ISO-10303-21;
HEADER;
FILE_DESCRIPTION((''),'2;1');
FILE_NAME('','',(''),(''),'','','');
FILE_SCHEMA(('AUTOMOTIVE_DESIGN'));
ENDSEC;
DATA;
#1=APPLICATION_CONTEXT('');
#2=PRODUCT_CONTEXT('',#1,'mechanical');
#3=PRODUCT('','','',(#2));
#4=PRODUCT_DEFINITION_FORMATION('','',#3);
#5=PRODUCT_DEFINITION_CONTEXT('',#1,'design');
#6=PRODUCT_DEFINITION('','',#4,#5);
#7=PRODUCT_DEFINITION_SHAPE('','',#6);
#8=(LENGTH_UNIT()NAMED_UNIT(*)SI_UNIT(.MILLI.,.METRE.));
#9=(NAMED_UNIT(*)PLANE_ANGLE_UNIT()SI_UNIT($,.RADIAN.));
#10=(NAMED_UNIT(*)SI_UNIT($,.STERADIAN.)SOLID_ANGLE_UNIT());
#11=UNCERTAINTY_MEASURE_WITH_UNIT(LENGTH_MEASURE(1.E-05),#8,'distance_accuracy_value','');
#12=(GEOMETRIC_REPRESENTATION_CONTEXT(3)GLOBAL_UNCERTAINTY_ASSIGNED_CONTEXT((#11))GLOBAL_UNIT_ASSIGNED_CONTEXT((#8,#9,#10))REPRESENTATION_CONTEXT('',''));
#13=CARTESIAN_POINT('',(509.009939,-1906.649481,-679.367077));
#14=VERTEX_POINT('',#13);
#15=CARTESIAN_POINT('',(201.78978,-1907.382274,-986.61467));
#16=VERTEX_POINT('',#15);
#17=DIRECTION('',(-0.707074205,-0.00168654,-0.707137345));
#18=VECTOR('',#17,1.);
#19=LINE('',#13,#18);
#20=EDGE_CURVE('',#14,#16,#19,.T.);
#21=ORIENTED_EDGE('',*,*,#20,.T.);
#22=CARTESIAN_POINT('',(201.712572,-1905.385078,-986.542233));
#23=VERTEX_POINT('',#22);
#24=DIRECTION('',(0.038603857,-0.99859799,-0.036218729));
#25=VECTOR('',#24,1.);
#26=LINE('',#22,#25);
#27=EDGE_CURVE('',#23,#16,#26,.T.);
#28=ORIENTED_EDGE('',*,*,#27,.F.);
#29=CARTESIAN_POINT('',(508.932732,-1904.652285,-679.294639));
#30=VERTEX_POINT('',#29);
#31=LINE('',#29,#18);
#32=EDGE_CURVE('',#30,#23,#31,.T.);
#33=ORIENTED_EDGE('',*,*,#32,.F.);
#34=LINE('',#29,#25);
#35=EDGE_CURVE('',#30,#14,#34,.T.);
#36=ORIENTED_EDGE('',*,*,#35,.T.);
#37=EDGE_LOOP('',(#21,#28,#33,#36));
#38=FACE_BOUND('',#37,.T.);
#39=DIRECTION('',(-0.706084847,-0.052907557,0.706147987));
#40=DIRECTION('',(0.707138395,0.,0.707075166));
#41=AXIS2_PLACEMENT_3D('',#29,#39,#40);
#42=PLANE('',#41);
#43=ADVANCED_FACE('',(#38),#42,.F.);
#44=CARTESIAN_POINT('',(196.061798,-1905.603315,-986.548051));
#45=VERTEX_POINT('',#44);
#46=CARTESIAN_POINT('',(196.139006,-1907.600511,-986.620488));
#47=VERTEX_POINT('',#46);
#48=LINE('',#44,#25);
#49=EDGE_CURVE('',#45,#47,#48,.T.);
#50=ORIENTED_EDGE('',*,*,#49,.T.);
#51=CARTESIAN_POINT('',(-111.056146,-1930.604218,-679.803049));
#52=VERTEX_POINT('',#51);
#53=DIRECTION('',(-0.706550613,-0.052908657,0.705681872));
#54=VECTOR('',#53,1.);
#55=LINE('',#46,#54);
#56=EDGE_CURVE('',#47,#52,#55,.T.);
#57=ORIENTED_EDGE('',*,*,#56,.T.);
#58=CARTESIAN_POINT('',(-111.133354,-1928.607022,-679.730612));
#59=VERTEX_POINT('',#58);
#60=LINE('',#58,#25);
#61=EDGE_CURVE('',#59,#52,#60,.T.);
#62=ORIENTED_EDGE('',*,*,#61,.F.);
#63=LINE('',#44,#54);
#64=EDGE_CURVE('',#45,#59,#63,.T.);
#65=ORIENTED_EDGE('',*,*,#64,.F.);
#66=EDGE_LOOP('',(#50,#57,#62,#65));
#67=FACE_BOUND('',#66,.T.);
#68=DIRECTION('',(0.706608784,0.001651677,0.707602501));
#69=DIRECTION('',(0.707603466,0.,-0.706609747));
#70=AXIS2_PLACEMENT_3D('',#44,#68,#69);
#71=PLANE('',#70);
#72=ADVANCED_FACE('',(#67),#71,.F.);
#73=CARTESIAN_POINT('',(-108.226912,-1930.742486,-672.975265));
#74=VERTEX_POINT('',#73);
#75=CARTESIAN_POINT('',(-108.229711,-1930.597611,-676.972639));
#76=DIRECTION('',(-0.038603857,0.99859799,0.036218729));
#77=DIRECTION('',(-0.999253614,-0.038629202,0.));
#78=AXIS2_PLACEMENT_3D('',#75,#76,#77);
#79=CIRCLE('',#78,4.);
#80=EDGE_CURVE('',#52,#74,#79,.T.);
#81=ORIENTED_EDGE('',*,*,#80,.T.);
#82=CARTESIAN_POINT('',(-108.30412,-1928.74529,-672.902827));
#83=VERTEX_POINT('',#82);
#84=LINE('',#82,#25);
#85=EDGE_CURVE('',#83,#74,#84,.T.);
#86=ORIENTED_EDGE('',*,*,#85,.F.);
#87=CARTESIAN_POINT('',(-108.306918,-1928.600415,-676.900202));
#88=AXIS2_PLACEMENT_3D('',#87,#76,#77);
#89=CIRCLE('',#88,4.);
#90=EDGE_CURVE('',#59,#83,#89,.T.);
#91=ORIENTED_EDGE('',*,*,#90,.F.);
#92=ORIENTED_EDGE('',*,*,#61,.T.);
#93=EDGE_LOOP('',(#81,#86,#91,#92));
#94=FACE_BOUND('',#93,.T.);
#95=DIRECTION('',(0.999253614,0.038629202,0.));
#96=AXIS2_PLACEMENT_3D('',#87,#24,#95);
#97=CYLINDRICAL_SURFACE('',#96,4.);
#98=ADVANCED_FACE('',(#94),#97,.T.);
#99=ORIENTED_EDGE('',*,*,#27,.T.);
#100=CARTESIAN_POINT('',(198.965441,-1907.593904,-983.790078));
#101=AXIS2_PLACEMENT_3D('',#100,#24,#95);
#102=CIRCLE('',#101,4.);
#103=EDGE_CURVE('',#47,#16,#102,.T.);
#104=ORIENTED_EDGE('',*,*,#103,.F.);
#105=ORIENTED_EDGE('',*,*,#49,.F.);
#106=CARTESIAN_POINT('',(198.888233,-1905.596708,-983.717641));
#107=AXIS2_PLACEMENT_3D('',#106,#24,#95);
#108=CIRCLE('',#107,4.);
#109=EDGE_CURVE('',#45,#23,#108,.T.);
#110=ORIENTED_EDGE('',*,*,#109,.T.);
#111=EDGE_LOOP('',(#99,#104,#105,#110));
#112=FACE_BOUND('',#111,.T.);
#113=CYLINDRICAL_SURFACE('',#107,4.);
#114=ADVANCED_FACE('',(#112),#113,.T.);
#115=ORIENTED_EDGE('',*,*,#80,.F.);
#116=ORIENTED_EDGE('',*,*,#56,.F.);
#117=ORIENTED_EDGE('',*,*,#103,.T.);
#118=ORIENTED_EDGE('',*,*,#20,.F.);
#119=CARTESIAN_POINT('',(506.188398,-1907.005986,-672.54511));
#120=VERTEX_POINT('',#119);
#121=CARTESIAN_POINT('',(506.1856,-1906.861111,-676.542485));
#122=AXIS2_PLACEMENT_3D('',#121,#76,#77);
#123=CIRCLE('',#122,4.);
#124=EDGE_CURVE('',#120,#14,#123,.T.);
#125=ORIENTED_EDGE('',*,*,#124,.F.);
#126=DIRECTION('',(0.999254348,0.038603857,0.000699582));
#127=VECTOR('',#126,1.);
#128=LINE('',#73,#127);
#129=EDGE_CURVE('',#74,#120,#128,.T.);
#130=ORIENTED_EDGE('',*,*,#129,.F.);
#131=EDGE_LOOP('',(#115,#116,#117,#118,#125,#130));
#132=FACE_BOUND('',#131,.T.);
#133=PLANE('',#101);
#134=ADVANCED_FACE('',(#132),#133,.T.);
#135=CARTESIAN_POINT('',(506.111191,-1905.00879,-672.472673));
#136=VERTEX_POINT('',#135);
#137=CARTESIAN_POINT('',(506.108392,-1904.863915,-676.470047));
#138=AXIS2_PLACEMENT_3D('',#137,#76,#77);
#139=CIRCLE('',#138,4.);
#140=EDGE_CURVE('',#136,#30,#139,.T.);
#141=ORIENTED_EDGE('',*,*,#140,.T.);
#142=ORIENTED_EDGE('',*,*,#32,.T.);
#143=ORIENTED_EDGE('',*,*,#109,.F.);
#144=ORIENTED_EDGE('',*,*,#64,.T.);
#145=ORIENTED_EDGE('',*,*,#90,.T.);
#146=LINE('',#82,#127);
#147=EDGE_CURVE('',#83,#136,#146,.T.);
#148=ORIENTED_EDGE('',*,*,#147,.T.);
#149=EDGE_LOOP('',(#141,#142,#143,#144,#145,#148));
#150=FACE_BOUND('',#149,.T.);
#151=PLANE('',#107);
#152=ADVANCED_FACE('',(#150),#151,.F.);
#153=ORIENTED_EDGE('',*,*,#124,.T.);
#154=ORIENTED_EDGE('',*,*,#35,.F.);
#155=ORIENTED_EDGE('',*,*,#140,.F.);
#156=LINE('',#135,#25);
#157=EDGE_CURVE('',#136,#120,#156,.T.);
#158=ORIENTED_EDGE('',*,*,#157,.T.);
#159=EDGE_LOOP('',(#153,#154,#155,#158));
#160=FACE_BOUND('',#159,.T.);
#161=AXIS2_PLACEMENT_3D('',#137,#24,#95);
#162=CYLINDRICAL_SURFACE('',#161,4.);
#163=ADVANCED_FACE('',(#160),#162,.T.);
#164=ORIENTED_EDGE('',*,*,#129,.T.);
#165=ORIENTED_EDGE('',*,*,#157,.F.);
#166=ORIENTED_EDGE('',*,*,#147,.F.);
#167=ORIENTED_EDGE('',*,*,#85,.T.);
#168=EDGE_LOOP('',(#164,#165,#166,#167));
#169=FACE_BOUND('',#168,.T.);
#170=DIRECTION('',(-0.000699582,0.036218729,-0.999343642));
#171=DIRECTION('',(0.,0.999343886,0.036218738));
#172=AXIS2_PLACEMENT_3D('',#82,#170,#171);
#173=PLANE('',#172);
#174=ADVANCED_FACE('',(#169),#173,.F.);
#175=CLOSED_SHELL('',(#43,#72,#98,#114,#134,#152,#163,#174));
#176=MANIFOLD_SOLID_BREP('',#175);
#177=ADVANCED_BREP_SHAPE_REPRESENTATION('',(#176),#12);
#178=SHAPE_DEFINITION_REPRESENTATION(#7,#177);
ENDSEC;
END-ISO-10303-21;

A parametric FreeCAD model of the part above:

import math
import FreeCAD as App
import Part
import Sketcher
Q = App.Units.Quantity

doc = App.newDocument("Part")
params = doc.addObject("Spreadsheet::Sheet", "Params")
for row, (alias, value) in enumerate([
    ("sketch1_radius", "4 mm"),
    ("pad1_length", "2 mm"),
], start=1):
    params.set(f"A{row}", alias)
    params.set(f"B{row}", "=" + value)
    params.setAlias(f"B{row}", alias)

body = doc.addObject("PartDesign::Body", "Body")

# Sketch on an angled plane
sketch1 = doc.addObject("Sketcher::SketchObject", "Sketch")
body.addObject(sketch1)
sketch1.Placement = App.Placement(App.Vector(75.209265, -1945.500458, -70.562483), App.Rotation(App.Vector(0.999254348, 0.038603857, 0.000699582), App.Vector(-0.000699581, 0.036218729, -0.999343641), App.Vector(-0.038603857, 0.99859799, 0.036218729), "ZXY"))
sketch1.addGeometry([
    Part.LineSegment(App.Vector(121.7, 916.7, 0), App.Vector(-186, 609.5, 0)),  # 0
    Part.ArcOfCircle(Part.Circle(App.Vector(-183.2, 606.7, 0), App.Vector(0, 0, 1), 4), math.radians(135), math.radians(270)),  # 1
    Part.LineSegment(App.Vector(-183.2, 602.7, 0), App.Vector(431.7, 602.7, 0)),  # 2
    Part.ArcOfCircle(Part.Circle(App.Vector(431.7, 606.7, 0), App.Vector(0, 0, 1), 4), math.radians(-90), math.radians(45)),  # 3
    Part.LineSegment(App.Vector(434.6, 609.5, 0), App.Vector(127.3, 916.7, 0)),  # 4
    Part.ArcOfCircle(Part.Circle(App.Vector(124.5, 913.9, 0), App.Vector(0, 0, 1), 4), math.radians(45), math.radians(135)),  # 5
], False)
sketch1.addConstraint([
    Sketcher.Constraint("Tangent", 0, 2, 1, 1),
    Sketcher.Constraint("Tangent", 1, 2, 2, 1),
    Sketcher.Constraint("Tangent", 2, 2, 3, 1),
    Sketcher.Constraint("Tangent", 3, 2, 4, 1),
    Sketcher.Constraint("Tangent", 4, 2, 5, 1),
    Sketcher.Constraint("Tangent", 5, 2, 0, 1),
    Sketcher.Constraint("Horizontal", 2),
    Sketcher.Constraint("Equal", 1, 3),
    Sketcher.Constraint("Equal", 3, 5),
    Sketcher.Constraint("Radius", 1, 4.0),
    Sketcher.Constraint("Angle", 4, Q("135 deg")),
    Sketcher.Constraint("DistanceX", 2, 1, 2, 2, 614.873792),
    Sketcher.Constraint("DistanceX", -1, 1, 3, 2, 434.551099),
    Sketcher.Constraint("DistanceX", -1, 1, 5, 3, 124.488359),
    Sketcher.Constraint("DistanceY", -1, 1, 5, 3, 913.91454),
])
sketch1.setExpression("Constraints[9]", "Params.sketch1_radius")
pad1 = doc.addObject("PartDesign::Pad", "Pad")
body.addObject(pad1)
pad1.Profile = sketch1
pad1.setExpression("Length", "Params.pad1_length")

doc.recompute()
